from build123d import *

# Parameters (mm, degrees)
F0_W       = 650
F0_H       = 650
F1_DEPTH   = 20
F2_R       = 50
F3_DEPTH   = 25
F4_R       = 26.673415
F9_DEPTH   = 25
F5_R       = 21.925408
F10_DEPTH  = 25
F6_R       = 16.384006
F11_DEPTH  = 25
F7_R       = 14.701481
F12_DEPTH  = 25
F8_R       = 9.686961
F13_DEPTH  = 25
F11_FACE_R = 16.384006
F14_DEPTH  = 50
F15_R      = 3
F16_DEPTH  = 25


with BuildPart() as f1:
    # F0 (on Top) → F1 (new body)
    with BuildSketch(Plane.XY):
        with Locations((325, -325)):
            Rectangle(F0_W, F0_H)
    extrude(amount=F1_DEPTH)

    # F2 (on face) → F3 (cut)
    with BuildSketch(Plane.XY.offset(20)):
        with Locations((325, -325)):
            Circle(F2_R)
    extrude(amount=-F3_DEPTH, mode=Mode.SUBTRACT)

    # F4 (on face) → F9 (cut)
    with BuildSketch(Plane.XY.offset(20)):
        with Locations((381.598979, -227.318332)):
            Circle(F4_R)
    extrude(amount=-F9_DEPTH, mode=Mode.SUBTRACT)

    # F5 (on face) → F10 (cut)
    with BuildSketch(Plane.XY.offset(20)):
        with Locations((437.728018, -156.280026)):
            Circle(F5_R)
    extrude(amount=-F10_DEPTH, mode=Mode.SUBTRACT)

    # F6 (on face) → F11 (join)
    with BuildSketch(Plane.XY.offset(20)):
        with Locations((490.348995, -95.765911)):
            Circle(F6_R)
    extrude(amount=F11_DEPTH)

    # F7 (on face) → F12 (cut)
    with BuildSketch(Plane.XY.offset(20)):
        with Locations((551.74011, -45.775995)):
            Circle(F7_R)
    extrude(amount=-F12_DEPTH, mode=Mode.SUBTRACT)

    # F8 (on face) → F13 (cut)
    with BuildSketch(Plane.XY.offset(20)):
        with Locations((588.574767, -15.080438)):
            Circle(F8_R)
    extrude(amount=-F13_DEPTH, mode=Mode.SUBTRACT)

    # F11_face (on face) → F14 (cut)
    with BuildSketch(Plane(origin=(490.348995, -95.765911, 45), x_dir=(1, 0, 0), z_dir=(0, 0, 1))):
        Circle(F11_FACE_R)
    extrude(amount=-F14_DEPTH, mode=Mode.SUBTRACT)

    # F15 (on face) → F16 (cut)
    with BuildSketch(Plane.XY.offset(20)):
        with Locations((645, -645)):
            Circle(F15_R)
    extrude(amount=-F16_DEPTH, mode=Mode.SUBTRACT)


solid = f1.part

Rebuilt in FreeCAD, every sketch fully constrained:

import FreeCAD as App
import Part
import Sketcher
from FreeCAD import Vector

doc = App.newDocument("Part")
body = doc.addObject("PartDesign::Body", "Body")

# Sketch on XY plane
sketch1 = body.newObject("Sketcher::SketchObject", "Sketch")
sketch1.AttachmentSupport = (doc.getObject("XY_Plane"), [""])
sketch1.MapMode = "FlatFace"
sketch1.addGeometry([
    Part.LineSegment(Vector(0, 0, 0), Vector(0, -650, 0)),
    Part.LineSegment(Vector(0, -650, 0), Vector(650, -650, 0)),
    Part.LineSegment(Vector(650, -650, 0), Vector(650, 0, 0)),
    Part.LineSegment(Vector(650, 0, 0), Vector(0, 0, 0)),
], False)
sketch1.addConstraint([
    Sketcher.Constraint("Coincident", 0, 2, 1, 1),
    Sketcher.Constraint("Coincident", 1, 2, 2, 1),
    Sketcher.Constraint("Coincident", 2, 2, 3, 1),
    Sketcher.Constraint("Coincident", 3, 2, 0, 1),
    Sketcher.Constraint("Vertical", 0),
    Sketcher.Constraint("Horizontal", 1),
    Sketcher.Constraint("Vertical", 2),
    Sketcher.Constraint("Horizontal", 3),
    Sketcher.Constraint("Coincident", 3, 2, -1, 1),
    Sketcher.Constraint("Equal", 3, 0),
    Sketcher.Constraint("DistanceX", 1, 1, 1, 2, 650.0),
])
pad1 = body.newObject("PartDesign::Pad", "Pad")
pad1.Profile = sketch1
pad1.Length = 20

# Sketch on XY plane
sketch2 = body.newObject("Sketcher::SketchObject", "Sketch001")
sketch2.AttachmentSupport = (doc.getObject("XY_Plane"), [""])
sketch2.MapMode = "FlatFace"
sketch2.AttachmentOffset = App.Placement(Vector(0, 0, 20), App.Rotation())
sketch2.addGeometry(Part.Circle(Vector(325, -325, 0), Vector(0, 0, 1), 50), False)
sketch2.addConstraint([
    Sketcher.Constraint("Diameter", 0, 100.0),
    Sketcher.Constraint("DistanceX", -1, 1, 0, 3, 325.0),
    Sketcher.Constraint("DistanceY", 0, 3, -1, 1, 325.0),
])
pocket1 = body.newObject("PartDesign::Pocket", "Pocket")
pocket1.Profile = sketch2
pocket1.Length = 25

# Sketch on XY plane
sketch3 = body.newObject("Sketcher::SketchObject", "Sketch002")
sketch3.AttachmentSupport = (doc.getObject("XY_Plane"), [""])
sketch3.MapMode = "FlatFace"
sketch3.AttachmentOffset = App.Placement(Vector(0, 0, 20), App.Rotation())
sketch3.addGeometry(Part.Circle(Vector(382, -227, 0), Vector(0, 0, 1), 27), False)
sketch3.addConstraint([
    Sketcher.Constraint("Diameter", 0, 53.34683),
    Sketcher.Constraint("DistanceX", -1, 1, 0, 3, 381.598979),
    Sketcher.Constraint("DistanceY", 0, 3, -1, 1, 227.318332),
])
pocket2 = body.newObject("PartDesign::Pocket", "Pocket001")
pocket2.Profile = sketch3
pocket2.Length = 25

# Sketch on XY plane
sketch4 = body.newObject("Sketcher::SketchObject", "Sketch003")
sketch4.AttachmentSupport = (doc.getObject("XY_Plane"), [""])
sketch4.MapMode = "FlatFace"
sketch4.AttachmentOffset = App.Placement(Vector(0, 0, 20), App.Rotation())
sketch4.addGeometry(Part.Circle(Vector(438, -156, 0), Vector(0, 0, 1), 22), False)
sketch4.addConstraint([
    Sketcher.Constraint("Diameter", 0, 43.850816),
    Sketcher.Constraint("DistanceX", -1, 1, 0, 3, 437.728018),
    Sketcher.Constraint("DistanceY", 0, 3, -1, 1, 156.280026),
])
pocket3 = body.newObject("PartDesign::Pocket", "Pocket002")
pocket3.Profile = sketch4
pocket3.Length = 25

# Sketch on XY plane
sketch5 = body.newObject("Sketcher::SketchObject", "Sketch004")
sketch5.AttachmentSupport = (doc.getObject("XY_Plane"), [""])
sketch5.MapMode = "FlatFace"
sketch5.AttachmentOffset = App.Placement(Vector(0, 0, 20), App.Rotation())
sketch5.addGeometry(Part.Circle(Vector(490, -96, 0), Vector(0, 0, 1), 16), False)
sketch5.addConstraint([
    Sketcher.Constraint("Diameter", 0, 32.768012),
    Sketcher.Constraint("DistanceY", 0, 3, -1, 1, 95.765911),
    Sketcher.Constraint("DistanceX", -1, 1, 0, 3, 490.348995),
])
pad2 = body.newObject("PartDesign::Pad", "Pad001")
pad2.Profile = sketch5
pad2.Length = 25

# Sketch on XY plane
sketch6 = body.newObject("Sketcher::SketchObject", "Sketch005")
sketch6.AttachmentSupport = (doc.getObject("XY_Plane"), [""])
sketch6.MapMode = "FlatFace"
sketch6.AttachmentOffset = App.Placement(Vector(0, 0, 20), App.Rotation())
sketch6.addGeometry(Part.Circle(Vector(552, -46, 0), Vector(0, 0, 1), 15), False)
sketch6.addConstraint([
    Sketcher.Constraint("Diameter", 0, 29.402962),
    Sketcher.Constraint("DistanceX", -1, 1, 0, 3, 551.74011),
    Sketcher.Constraint("DistanceY", 0, 3, -1, 1, 45.775995),
])
pocket4 = body.newObject("PartDesign::Pocket", "Pocket003")
pocket4.Profile = sketch6
pocket4.Length = 25

# Sketch on XY plane
sketch7 = body.newObject("Sketcher::SketchObject", "Sketch006")
sketch7.AttachmentSupport = (doc.getObject("XY_Plane"), [""])
sketch7.MapMode = "FlatFace"
sketch7.AttachmentOffset = App.Placement(Vector(0, 0, 20), App.Rotation())
sketch7.addGeometry(Part.Circle(Vector(589, -15, 0), Vector(0, 0, 1), 10), False)
sketch7.addConstraint([
    Sketcher.Constraint("Diameter", 0, 19.373922),
    Sketcher.Constraint("DistanceX", -1, 1, 0, 3, 588.574767),
    Sketcher.Constraint("DistanceY", 0, 3, -1, 1, 15.080438),
])
pocket5 = body.newObject("PartDesign::Pocket", "Pocket004")
pocket5.Profile = sketch7
pocket5.Length = 25

# Sketch on XY plane
sketch8 = body.newObject("Sketcher::SketchObject", "Sketch007")
sketch8.AttachmentSupport = (doc.getObject("XY_Plane"), [""])
sketch8.MapMode = "FlatFace"
sketch8.AttachmentOffset = App.Placement(Vector(0, 0, 45), App.Rotation())
sketch8.addGeometry(Part.Circle(Vector(490, -96, 0), Vector(0, 0, 1), 16), False)
sketch8.addConstraint([
    Sketcher.Constraint("Diameter", 0, 32.768012),
    Sketcher.Constraint("DistanceY", 0, 3, -1, 1, 95.765911),
    Sketcher.Constraint("DistanceX", -1, 1, 0, 3, 490.348995),
])
pocket6 = body.newObject("PartDesign::Pocket", "Pocket005")
pocket6.Profile = sketch8
pocket6.Length = 50

# Sketch on XY plane
sketch9 = body.newObject("Sketcher::SketchObject", "Sketch008")
sketch9.AttachmentSupport = (doc.getObject("XY_Plane"), [""])
sketch9.MapMode = "FlatFace"
sketch9.AttachmentOffset = App.Placement(Vector(0, 0, 20), App.Rotation())
sketch9.addGeometry(Part.Circle(Vector(645, -645, 0), Vector(0, 0, 1), 3), False)
sketch9.addConstraint([
    Sketcher.Constraint("Diameter", 0, 6.0),
    Sketcher.Constraint("DistanceX", -1, 1, 0, 3, 645.0),
    Sketcher.Constraint("DistanceY", 0, 3, -1, 1, 645.0),
])
pocket7 = body.newObject("PartDesign::Pocket", "Pocket006")
pocket7.Profile = sketch9
pocket7.Length = 25

doc.recompute()
